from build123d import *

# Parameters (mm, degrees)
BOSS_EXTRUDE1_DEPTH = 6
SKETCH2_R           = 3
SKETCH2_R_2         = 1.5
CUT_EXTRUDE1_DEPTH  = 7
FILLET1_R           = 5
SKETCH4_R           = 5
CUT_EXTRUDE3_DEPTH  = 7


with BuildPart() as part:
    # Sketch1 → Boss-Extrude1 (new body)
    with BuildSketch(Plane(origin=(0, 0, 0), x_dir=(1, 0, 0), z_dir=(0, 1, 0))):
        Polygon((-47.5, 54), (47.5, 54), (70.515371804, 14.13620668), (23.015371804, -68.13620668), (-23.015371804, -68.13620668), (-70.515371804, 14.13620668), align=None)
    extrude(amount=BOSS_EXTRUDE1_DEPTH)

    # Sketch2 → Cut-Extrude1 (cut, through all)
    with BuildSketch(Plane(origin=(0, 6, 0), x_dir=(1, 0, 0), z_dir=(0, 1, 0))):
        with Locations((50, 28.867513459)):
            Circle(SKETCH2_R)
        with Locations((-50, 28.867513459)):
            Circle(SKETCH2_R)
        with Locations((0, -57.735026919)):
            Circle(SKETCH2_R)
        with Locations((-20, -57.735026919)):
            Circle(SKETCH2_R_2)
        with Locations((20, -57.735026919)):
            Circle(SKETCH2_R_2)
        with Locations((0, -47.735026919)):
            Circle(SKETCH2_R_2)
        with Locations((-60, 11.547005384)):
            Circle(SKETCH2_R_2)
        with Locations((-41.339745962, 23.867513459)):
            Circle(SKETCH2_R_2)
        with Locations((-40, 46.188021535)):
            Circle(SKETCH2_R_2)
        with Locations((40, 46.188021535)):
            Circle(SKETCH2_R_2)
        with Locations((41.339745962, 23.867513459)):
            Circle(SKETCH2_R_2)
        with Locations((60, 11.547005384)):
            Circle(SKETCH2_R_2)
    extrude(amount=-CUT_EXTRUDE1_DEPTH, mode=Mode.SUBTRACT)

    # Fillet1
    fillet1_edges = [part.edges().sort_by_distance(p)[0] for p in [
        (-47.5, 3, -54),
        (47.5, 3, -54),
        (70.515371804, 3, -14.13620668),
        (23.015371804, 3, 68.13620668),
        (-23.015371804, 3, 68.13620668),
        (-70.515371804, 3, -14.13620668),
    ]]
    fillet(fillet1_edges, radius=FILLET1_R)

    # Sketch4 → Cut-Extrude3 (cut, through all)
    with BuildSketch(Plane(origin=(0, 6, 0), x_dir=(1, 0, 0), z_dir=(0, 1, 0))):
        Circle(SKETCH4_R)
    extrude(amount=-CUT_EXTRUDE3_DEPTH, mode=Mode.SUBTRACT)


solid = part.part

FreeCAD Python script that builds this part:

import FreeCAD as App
import Part
import Sketcher
from FreeCAD import Vector
Q = App.Units.Quantity


def edges_at(feature, points):
    """Names of the edges that pass closest to the given points."""
    edges = feature.Shape.Edges
    near = lambda p: min(range(len(edges)), key=lambda i: edges[i].distToShape(Part.Vertex(*p))[0])
    return sorted({f"Edge{near(p) + 1}" for p in points})


def add_polygon(sketch, points):
    """Adds a closed chain of lines whose ends are joined by coincident constraints."""
    first, n = sketch.GeometryCount, len(points)
    for a, b in zip(points, points[1:] + points[:1]):
        sketch.addGeometry(Part.LineSegment(App.Vector(*a, 0), App.Vector(*b, 0)), False)
    for i in range(n):
        sketch.addConstraint(Sketcher.Constraint("Coincident", first + i, 2, first + (i + 1) % n, 1))

doc = App.newDocument("Part")
body = doc.addObject("PartDesign::Body", "Body")

sketch1 = doc.addObject("Sketcher::SketchObject", "Sketch")
body.addObject(sketch1)
sketch1.AttachmentSupport = (doc.XZ_Plane, [""])
sketch1.MapMode = "FlatFace"
add_polygon(sketch1, [(48, -54), (-48, -54), (-71, -14), (-23, 68), (23, 68), (71, -14)])
sketch1.addConstraint([
    Sketcher.Constraint("Horizontal", 0),
    Sketcher.Constraint("Horizontal", 3),
    Sketcher.Constraint("Symmetric", 1, 2, 4, 2, -2),
    Sketcher.Constraint("Parallel", 1, 4),
    Sketcher.Constraint("Parallel", 2, 5),
    Sketcher.Constraint("Equal", 2, 4),
    Sketcher.Constraint("DistanceX", 0, 2, 0, 1, Q("95 mm")),
    Sketcher.Constraint("Angle", 1, Q("120 deg")),
    Sketcher.Constraint("Distance", 2, Q("95 mm")),
    Sketcher.Constraint("DistanceY", 0, 2, -1, 1, Q("54 mm")),
    Sketcher.Constraint("DistanceX", 3, 1, 3, 2, Q("46.030744 mm")),
])
pad1 = doc.addObject("PartDesign::Pad", "Pad")
body.addObject(pad1)
pad1.Profile = sketch1
pad1.Length = 6
pad1.Reversed = True

sketch2 = doc.addObject("Sketcher::SketchObject", "Sketch001")
body.addObject(sketch2)
sketch2.AttachmentSupport = (doc.XZ_Plane, [""])
sketch2.MapMode = "FlatFace"
sketch2.AttachmentOffset = App.Placement(Vector(0, 0, -6), App.Rotation())
sketch2.addGeometry([
    Part.Circle(Vector(50, -28.9, 0), Vector(0, 0, 1), 3),
    Part.Circle(Vector(-50, -28.9, 0), Vector(0, 0, 1), 3),
    Part.Circle(Vector(0, 57.7, 0), Vector(0, 0, 1), 3),
    Part.Circle(Vector(-20, 57.7, 0), Vector(0, 0, 1), 1.5),
    Part.Circle(Vector(20, 57.7, 0), Vector(0, 0, 1), 1.5),
    Part.Circle(Vector(0, 47.7, 0), Vector(0, 0, 1), 1.5),
    Part.Circle(Vector(-60, -11.5, 0), Vector(0, 0, 1), 1.5),
    Part.Circle(Vector(-41.3, -23.9, 0), Vector(0, 0, 1), 1.5),
    Part.Circle(Vector(-40, -46.2, 0), Vector(0, 0, 1), 1.5),
    Part.Circle(Vector(40, -46.2, 0), Vector(0, 0, 1), 1.5),
    Part.Circle(Vector(41.3, -23.9, 0), Vector(0, 0, 1), 1.5),
    Part.Circle(Vector(60, -11.5, 0), Vector(0, 0, 1), 1.5),
], False)
sketch2.addConstraint([
    Sketcher.Constraint("Equal", 0, 1),
    Sketcher.Constraint("Equal", 1, 2),
    Sketcher.Constraint("Equal", 3, 4),
    Sketcher.Constraint("Equal", 4, 5),
    Sketcher.Constraint("Equal", 5, 6),
    Sketcher.Constraint("Equal", 6, 7),
    Sketcher.Constraint("Equal", 7, 8),
    Sketcher.Constraint("Equal", 8, 9),
    Sketcher.Constraint("Equal", 9, 10),
    Sketcher.Constraint("Equal", 10, 11),
    Sketcher.Constraint("Symmetric", 0, 3, 1, 3, -2),
    Sketcher.Constraint("Symmetric", 3, 3, 4, 3, -2),
    Sketcher.Constraint("Symmetric", 8, 3, 9, 3, -2),
    Sketcher.Constraint("Symmetric", 7, 3, 10, 3, -2),
    Sketcher.Constraint("Symmetric", 6, 3, 11, 3, -2),
    Sketcher.Constraint("PointOnObject", 2, 3, -2),
    Sketcher.Constraint("PointOnObject", 5, 3, -2),
    Sketcher.Constraint("Horizontal", 2, 3, 3, 3),
    Sketcher.Constraint("Diameter", 0, Q("6 mm")),
    Sketcher.Constraint("Diameter", 3, Q("3 mm")),
    Sketcher.Constraint("DistanceX", -1, 1, 0, 3, Q("50 mm")),
    Sketcher.Constraint("DistanceX", 3, 3, -1, 1, Q("20 mm")),
    Sketcher.Constraint("DistanceX", 6, 3, -1, 1, Q("60 mm")),
    Sketcher.Constraint("DistanceX", 8, 3, -1, 1, Q("40 mm")),
    Sketcher.Constraint("DistanceY", 5, 3, 2, 3, Q("10 mm")),
    Sketcher.Constraint("DistanceY", 1, 3, 7, 3, Q("5 mm")),
    Sketcher.Constraint("DistanceY", 8, 3, -1, 1, Q("46.188022 mm")),
    Sketcher.Constraint("DistanceY", 0, 3, 2, 3, Q("86.60254 mm")),
    Sketcher.Constraint("DistanceY", 1, 3, 6, 3, Q("17.320508 mm")),
    Sketcher.Constraint("DistanceY", 8, 3, 1, 3, Q("17.320508 mm")),
    Sketcher.Constraint("DistanceX", 7, 3, 10, 3, Q("82.679492 mm")),
])
pocket1 = doc.addObject("PartDesign::Pocket", "Pocket")
body.addObject(pocket1)
pocket1.Profile = sketch2
pocket1.Type = "ThroughAll"
pocket1.Reversed = True
doc.recompute()

fillet = doc.addObject("PartDesign::Fillet", "Fillet")
body.addObject(fillet)
fillet.Base = (pocket1, edges_at(pocket1, [
    (-47.5, 3, -54),
    (47.5, 3, -54),
    (70.515, 3, -14.136),
    (23.015, 3, 68.136),
    (-23.015, 3, 68.136),
    (-70.515, 3, -14.136),
]))
fillet.Radius = 5

sketch3 = doc.addObject("Sketcher::SketchObject", "Sketch002")
body.addObject(sketch3)
sketch3.AttachmentSupport = (doc.XZ_Plane, [""])
sketch3.MapMode = "FlatFace"
sketch3.AttachmentOffset = App.Placement(Vector(0, 0, -6), App.Rotation())
sketch3.addGeometry(Part.Circle(Vector(0, 0, 0), Vector(0, 0, 1), 5), False)
sketch3.addConstraint([
    Sketcher.Constraint("Coincident", 0, 3, -1, 1),
    Sketcher.Constraint("Diameter", 0, Q("10 mm")),
])
pocket2 = doc.addObject("PartDesign::Pocket", "Pocket001")
body.addObject(pocket2)
pocket2.Profile = sketch3
pocket2.Type = "ThroughAll"
pocket2.Reversed = True

doc.recompute()
